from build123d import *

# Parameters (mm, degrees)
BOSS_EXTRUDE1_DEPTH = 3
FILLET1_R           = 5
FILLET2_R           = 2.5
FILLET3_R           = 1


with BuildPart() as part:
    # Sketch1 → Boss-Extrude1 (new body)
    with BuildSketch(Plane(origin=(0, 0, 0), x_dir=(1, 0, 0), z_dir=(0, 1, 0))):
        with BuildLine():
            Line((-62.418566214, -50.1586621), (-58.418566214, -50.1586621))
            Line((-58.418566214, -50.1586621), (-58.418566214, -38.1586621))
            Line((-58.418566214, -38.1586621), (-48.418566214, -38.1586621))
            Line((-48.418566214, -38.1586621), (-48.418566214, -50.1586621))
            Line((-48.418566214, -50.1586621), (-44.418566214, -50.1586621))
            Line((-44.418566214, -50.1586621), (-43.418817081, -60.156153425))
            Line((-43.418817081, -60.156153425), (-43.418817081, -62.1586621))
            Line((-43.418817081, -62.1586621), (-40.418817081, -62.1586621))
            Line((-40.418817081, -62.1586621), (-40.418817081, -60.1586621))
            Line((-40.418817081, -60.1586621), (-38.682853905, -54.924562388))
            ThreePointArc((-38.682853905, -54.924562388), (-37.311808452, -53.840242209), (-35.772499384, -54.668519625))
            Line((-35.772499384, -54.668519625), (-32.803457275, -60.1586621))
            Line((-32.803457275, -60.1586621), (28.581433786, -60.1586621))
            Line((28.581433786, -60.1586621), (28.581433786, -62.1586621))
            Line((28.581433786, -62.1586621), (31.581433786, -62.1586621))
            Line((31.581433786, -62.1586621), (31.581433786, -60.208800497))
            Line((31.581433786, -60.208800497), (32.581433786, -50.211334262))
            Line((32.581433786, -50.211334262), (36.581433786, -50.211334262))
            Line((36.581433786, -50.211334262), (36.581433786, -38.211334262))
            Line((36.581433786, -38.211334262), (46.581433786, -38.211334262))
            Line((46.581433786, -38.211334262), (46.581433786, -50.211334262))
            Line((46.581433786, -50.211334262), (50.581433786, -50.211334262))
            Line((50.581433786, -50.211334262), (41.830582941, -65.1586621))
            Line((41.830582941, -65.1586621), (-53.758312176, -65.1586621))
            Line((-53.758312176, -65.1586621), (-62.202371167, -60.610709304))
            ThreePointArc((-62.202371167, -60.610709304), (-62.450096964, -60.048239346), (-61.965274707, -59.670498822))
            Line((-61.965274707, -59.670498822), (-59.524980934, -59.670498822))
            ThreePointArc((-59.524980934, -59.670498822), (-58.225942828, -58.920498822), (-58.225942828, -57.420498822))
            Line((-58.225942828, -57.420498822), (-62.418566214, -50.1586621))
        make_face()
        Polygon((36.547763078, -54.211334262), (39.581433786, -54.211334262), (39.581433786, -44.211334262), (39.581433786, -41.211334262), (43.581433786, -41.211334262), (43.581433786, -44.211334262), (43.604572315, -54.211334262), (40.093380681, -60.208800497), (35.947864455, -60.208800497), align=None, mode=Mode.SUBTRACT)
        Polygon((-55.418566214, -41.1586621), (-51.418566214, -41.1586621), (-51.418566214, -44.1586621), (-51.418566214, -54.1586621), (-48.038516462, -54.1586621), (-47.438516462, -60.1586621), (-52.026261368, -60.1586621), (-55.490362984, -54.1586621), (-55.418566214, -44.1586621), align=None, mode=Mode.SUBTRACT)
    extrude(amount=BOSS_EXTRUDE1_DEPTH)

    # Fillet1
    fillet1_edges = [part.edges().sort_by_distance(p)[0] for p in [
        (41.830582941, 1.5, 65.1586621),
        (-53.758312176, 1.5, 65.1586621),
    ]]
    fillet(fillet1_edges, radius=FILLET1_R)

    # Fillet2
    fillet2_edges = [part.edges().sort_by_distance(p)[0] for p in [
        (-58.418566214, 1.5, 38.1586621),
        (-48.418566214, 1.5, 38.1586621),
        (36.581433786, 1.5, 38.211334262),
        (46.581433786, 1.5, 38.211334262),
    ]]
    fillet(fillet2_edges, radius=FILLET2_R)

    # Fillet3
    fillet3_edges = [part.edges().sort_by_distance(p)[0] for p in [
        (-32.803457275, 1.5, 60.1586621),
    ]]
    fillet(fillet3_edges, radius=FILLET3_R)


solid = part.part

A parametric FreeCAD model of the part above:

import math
import FreeCAD as App
import Part
import Sketcher
from FreeCAD import Vector
Q = App.Units.Quantity


def edges_at(feature, points):
    """Names of the edges that pass closest to the given points."""
    edges = feature.Shape.Edges
    near = lambda p: min(range(len(edges)), key=lambda i: edges[i].distToShape(Part.Vertex(*p))[0])
    return sorted({f"Edge{near(p) + 1}" for p in points})


def add_polygon(sketch, points):
    """Adds a closed chain of lines whose ends are joined by coincident constraints."""
    first, n = sketch.GeometryCount, len(points)
    for a, b in zip(points, points[1:] + points[:1]):
        sketch.addGeometry(Part.LineSegment(App.Vector(*a, 0), App.Vector(*b, 0)), False)
    for i in range(n):
        sketch.addConstraint(Sketcher.Constraint("Coincident", first + i, 2, first + (i + 1) % n, 1))

doc = App.newDocument("Part")
body = doc.addObject("PartDesign::Body", "Body")

# Sketch on XZ plane
sketch1 = body.newObject("Sketcher::SketchObject", "Sketch")
sketch1.AttachmentSupport = (doc.getObject("XZ_Plane"), [""])
sketch1.MapMode = "FlatFace"
sketch1.addGeometry(Part.LineSegment(Vector(-58.4, 50.2, 0), Vector(-62.4, 50.2, 0)), False)  # 0
sketch1.addGeometry(Part.LineSegment(Vector(-62.4, 50.2, 0), Vector(-58.2, 57.4, 0)), False)  # 1
sketch1.addGeometry(Part.ArcOfCircle(Part.Circle(Vector(-59.5, 58.2, 0), Vector(0, 0, 1), 1.5), math.radians(-30), math.radians(90)), False)  # 2
sketch1.addGeometry(Part.LineSegment(Vector(-59.5, 59.7, 0), Vector(-62, 59.7, 0)), False)  # 3
sketch1.addGeometry(Part.ArcOfCircle(Part.Circle(Vector(-62, 60.2, 0), Vector(0, 0, 1), 0.5), math.radians(118), math.radians(270)), False)  # 4
sketch1.addGeometry(Part.LineSegment(Vector(-62.2, 60.6, 0), Vector(-53.8, 65.2, 0)), False)  # 5
sketch1.addGeometry(Part.LineSegment(Vector(-53.8, 65.2, 0), Vector(41.8, 65.2, 0)), False)  # 6
sketch1.addGeometry(Part.LineSegment(Vector(41.8, 65.2, 0), Vector(50.6, 50.2, 0)), False)  # 7
sketch1.addGeometry(Part.LineSegment(Vector(50.6, 50.2, 0), Vector(46.6, 50.2, 0)), False)  # 8
sketch1.addGeometry(Part.LineSegment(Vector(46.6, 50.2, 0), Vector(46.6, 38.2, 0)), False)  # 9
sketch1.addGeometry(Part.LineSegment(Vector(46.6, 38.2, 0), Vector(36.6, 38.2, 0)), False)  # 10
sketch1.addGeometry(Part.LineSegment(Vector(36.6, 38.2, 0), Vector(36.6, 50.2, 0)), False)  # 11
sketch1.addGeometry(Part.LineSegment(Vector(36.6, 50.2, 0), Vector(32.6, 50.2, 0)), False)  # 12
sketch1.addGeometry(Part.LineSegment(Vector(32.6, 50.2, 0), Vector(31.6, 60.2, 0)), False)  # 13
sketch1.addGeometry(Part.LineSegment(Vector(31.6, 60.2, 0), Vector(31.6, 62.2, 0)), False)  # 14
sketch1.addGeometry(Part.LineSegment(Vector(31.6, 62.2, 0), Vector(28.6, 62.2, 0)), False)  # 15
sketch1.addGeometry(Part.LineSegment(Vector(28.6, 62.2, 0), Vector(28.6, 60.2, 0)), False)  # 16
sketch1.addGeometry(Part.LineSegment(Vector(28.6, 60.2, 0), Vector(-32.8, 60.2, 0)), False)  # 17
sketch1.addGeometry(Part.LineSegment(Vector(-32.8, 60.2, 0), Vector(-35.8, 54.7, 0)), False)  # 18
sketch1.addGeometry(Part.ArcOfCircle(Part.Circle(Vector(-37.2, 55.4, 0), Vector(0, 0, 1), 1.6), math.radians(-162), math.radians(-28)), False)  # 19
sketch1.addGeometry(Part.LineSegment(Vector(-38.7, 54.9, 0), Vector(-40.4, 60.2, 0)), False)  # 20
sketch1.addGeometry(Part.LineSegment(Vector(-40.4, 60.2, 0), Vector(-40.4, 62.2, 0)), False)  # 21
sketch1.addGeometry(Part.LineSegment(Vector(-40.4, 62.2, 0), Vector(-43.4, 62.2, 0)), False)  # 22
sketch1.addGeometry(Part.LineSegment(Vector(-43.4, 62.2, 0), Vector(-43.4, 60.2, 0)), False)  # 23
sketch1.addGeometry(Part.LineSegment(Vector(-43.4, 60.2, 0), Vector(-44.4, 50.2, 0)), False)  # 24
sketch1.addGeometry(Part.LineSegment(Vector(-44.4, 50.2, 0), Vector(-48.4, 50.2, 0)), False)  # 25
sketch1.addGeometry(Part.LineSegment(Vector(-48.4, 50.2, 0), Vector(-48.4, 38.2, 0)), False)  # 26
sketch1.addGeometry(Part.LineSegment(Vector(-48.4, 38.2, 0), Vector(-58.4, 38.2, 0)), False)  # 27
sketch1.addGeometry(Part.LineSegment(Vector(-58.4, 38.2, 0), Vector(-58.4, 50.2, 0)), False)  # 28
add_polygon(sketch1, [(36.5, 54.2), (39.6, 54.2), (39.6, 41.2), (43.6, 41.2), (43.6, 44.2), (43.6, 54.2), (40.1, 60.2), (35.9, 60.2)])  # lines 29-36
add_polygon(sketch1, [(-55.4, 41.2), (-51.4, 41.2), (-51.4, 54.2), (-48, 54.2), (-47.4, 60.2), (-52, 60.2), (-55.5, 54.2), (-55.4, 44.2)])  # lines 37-44
sketch1.addConstraint(Sketcher.Constraint("Coincident", 0, 2, 1, 1))
sketch1.addConstraint(Sketcher.Constraint("Tangent", 1, 2, 2, 1))
sketch1.addConstraint(Sketcher.Constraint("Tangent", 2, 2, 3, 1))
sketch1.addConstraint(Sketcher.Constraint("Tangent", 3, 2, 4, 2))
sketch1.addConstraint(Sketcher.Constraint("Tangent", 4, 1, 5, 1))
sketch1.addConstraint(Sketcher.Constraint("Coincident", 5, 2, 6, 1))
sketch1.addConstraint(Sketcher.Constraint("Coincident", 6, 2, 7, 1))
sketch1.addConstraint(Sketcher.Constraint("Coincident", 7, 2, 8, 1))
sketch1.addConstraint(Sketcher.Constraint("Coincident", 8, 2, 9, 1))
sketch1.addConstraint(Sketcher.Constraint("Coincident", 9, 2, 10, 1))
sketch1.addConstraint(Sketcher.Constraint("Coincident", 10, 2, 11, 1))
sketch1.addConstraint(Sketcher.Constraint("Coincident", 11, 2, 12, 1))
sketch1.addConstraint(Sketcher.Constraint("Coincident", 12, 2, 13, 1))
sketch1.addConstraint(Sketcher.Constraint("Coincident", 13, 2, 14, 1))
sketch1.addConstraint(Sketcher.Constraint("Coincident", 14, 2, 15, 1))
sketch1.addConstraint(Sketcher.Constraint("Coincident", 15, 2, 16, 1))
sketch1.addConstraint(Sketcher.Constraint("Coincident", 16, 2, 17, 1))
sketch1.addConstraint(Sketcher.Constraint("Coincident", 17, 2, 18, 1))
sketch1.addConstraint(Sketcher.Constraint("Tangent", 18, 2, 19, 2))
sketch1.addConstraint(Sketcher.Constraint("Tangent", 19, 1, 20, 1))
sketch1.addConstraint(Sketcher.Constraint("Coincident", 20, 2, 21, 1))
sketch1.addConstraint(Sketcher.Constraint("Coincident", 21, 2, 22, 1))
sketch1.addConstraint(Sketcher.Constraint("Coincident", 22, 2, 23, 1))
sketch1.addConstraint(Sketcher.Constraint("Coincident", 23, 2, 24, 1))
sketch1.addConstraint(Sketcher.Constraint("Coincident", 24, 2, 25, 1))
sketch1.addConstraint(Sketcher.Constraint("Coincident", 25, 2, 26, 1))
sketch1.addConstraint(Sketcher.Constraint("Coincident", 26, 2, 27, 1))
sketch1.addConstraint(Sketcher.Constraint("Coincident", 27, 2, 28, 1))
sketch1.addConstraint(Sketcher.Constraint("Coincident", 28, 2, 0, 1))
sketch1.addConstraint(Sketcher.Constraint("Horizontal", 0))
sketch1.addConstraint(Sketcher.Constraint("Horizontal", 3))
sketch1.addConstraint(Sketcher.Constraint("Horizontal", 6))
sketch1.addConstraint(Sketcher.Constraint("Horizontal", 8))
sketch1.addConstraint(Sketcher.Constraint("Vertical", 9))
sketch1.addConstraint(Sketcher.Constraint("Horizontal", 10))
sketch1.addConstraint(Sketcher.Constraint("Vertical", 11))
sketch1.addConstraint(Sketcher.Constraint("Horizontal", 12))
sketch1.addConstraint(Sketcher.Constraint("Vertical", 14))
sketch1.addConstraint(Sketcher.Constraint("Horizontal", 15))
sketch1.addConstraint(Sketcher.Constraint("Vertical", 16))
sketch1.addConstraint(Sketcher.Constraint("Horizontal", 17))
sketch1.addConstraint(Sketcher.Constraint("Vertical", 21))
sketch1.addConstraint(Sketcher.Constraint("Horizontal", 22))
sketch1.addConstraint(Sketcher.Constraint("Vertical", 23))
sketch1.addConstraint(Sketcher.Constraint("Horizontal", 25))
sketch1.addConstraint(Sketcher.Constraint("Vertical", 26))
sketch1.addConstraint(Sketcher.Constraint("Horizontal", 27))
sketch1.addConstraint(Sketcher.Constraint("Vertical", 28))
sketch1.addConstraint(Sketcher.Constraint("Horizontal", 29))
sketch1.addConstraint(Sketcher.Constraint("Vertical", 30))
sketch1.addConstraint(Sketcher.Constraint("Horizontal", 31))
sketch1.addConstraint(Sketcher.Constraint("Vertical", 32))
sketch1.addConstraint(Sketcher.Constraint("Horizontal", 35))
sketch1.addConstraint(Sketcher.Constraint("Horizontal", 37))
sketch1.addConstraint(Sketcher.Constraint("Vertical", 38))
sketch1.addConstraint(Sketcher.Constraint("Horizontal", 39))
sketch1.addConstraint(Sketcher.Constraint("Horizontal", 41))
sketch1.addConstraint(Sketcher.Constraint("Vertical", 44))
sketch1.addConstraint(Sketcher.Constraint("Parallel", 7, 34))
sketch1.addConstraint(Sketcher.Constraint("Parallel", 13, 36))
sketch1.addConstraint(Sketcher.Constraint("Parallel", 24, 40))
sketch1.addConstraint(Sketcher.Constraint("Parallel", 1, 42))
sketch1.addConstraint(Sketcher.Constraint("Horizontal", 8, 2, 11, 2))
sketch1.addConstraint(Sketcher.Constraint("Horizontal", 17, 2, 20, 2))
sketch1.addConstraint(Sketcher.Constraint("Horizontal", 15, 2, 21, 2))
sketch1.addConstraint(Sketcher.Constraint("Horizontal", 0, 2, 24, 2))
sketch1.addConstraint(Sketcher.Constraint("Horizontal", 29, 2, 33, 2))
sketch1.addConstraint(Sketcher.Constraint("Horizontal", 13, 2, 34, 2))
sketch1.addConstraint(Sketcher.Constraint("Horizontal", 20, 2, 40, 2))
sketch1.addConstraint(Sketcher.Constraint("Horizontal", 39, 2, 42, 2))
sketch1.addConstraint(Sketcher.Constraint("Equal", 0, 8))
sketch1.addConstraint(Sketcher.Constraint("Equal", 8, 12))
sketch1.addConstraint(Sketcher.Constraint("Equal", 15, 22))
sketch1.addConstraint(Sketcher.Constraint("Equal", 12, 25))
sketch1.addConstraint(Sketcher.Constraint("Equal", 10, 27))
sketch1.addConstraint(Sketcher.Constraint("Equal", 25, 31))
sketch1.addConstraint(Sketcher.Constraint("Equal", 31, 37))
sketch1.addConstraint(Sketcher.Constraint("Equal", 11, 26))
sketch1.addConstraint(Sketcher.Constraint("Equal", 22, 32))
sketch1.addConstraint(Sketcher.Constraint("Equal", 30, 38))
sketch1.addConstraint(Sketcher.Constraint("Equal", 32, 44))
sketch1.addConstraint(Sketcher.Constraint("Equal", 13, 24))
sketch1.addConstraint(Sketcher.Constraint("Radius", 2, 1.5))
sketch1.addConstraint(Sketcher.Constraint("Radius", 4, 0.5))
sketch1.addConstraint(Sketcher.Constraint("DistanceX", 0, 2, 0, 1, 4.0))
sketch1.addConstraint(Sketcher.Constraint("DistanceX", 10, 2, 10, 1, 10.0))
sketch1.addConstraint(Sketcher.Constraint("DistanceX", 15, 2, 15, 1, 3.0))
sketch1.addConstraint(Sketcher.Constraint("DistanceY", 9, 2, 9, 1, 12.0))
sketch1.addConstraint(Sketcher.Constraint("DistanceY", 16, 2, 16, 1, 2.0))
sketch1.addConstraint(Sketcher.Constraint("DistanceY", 30, 2, 30, 1, 13.0))
sketch1.addConstraint(Sketcher.Constraint("Angle", 1, Q("60 deg")))
sketch1.addConstraint(Sketcher.Constraint("DistanceX", 13, 2, 12, 2, 1.0))
sketch1.addConstraint(Sketcher.Constraint("DistanceY", 14, 2, 6, 2, 3.0))
sketch1.addConstraint(Sketcher.Constraint("DistanceY", 24, 2, 20, 2, 10.0))
sketch1.addConstraint(Sketcher.Constraint("DistanceX", 11, 2, 29, 2, 3.0))
sketch1.addConstraint(Sketcher.Constraint("DistanceY", 11, 2, 29, 2, 4.0))
sketch1.addConstraint(Sketcher.Constraint("DistanceX", 37, 2, 26, 2, 3.0))
sketch1.addConstraint(Sketcher.Constraint("DistanceY", 26, 2, 37, 2, 3.0))
sketch1.addConstraint(Sketcher.Constraint("DistanceX", 39, 2, 40, 2, 0.6))
sketch1.addConstraint(Sketcher.Constraint("Radius", 19, 1.591427))
sketch1.addConstraint(Sketcher.Constraint("DistanceX", 17, 2, 17, 1, 61.384891))
sketch1.addConstraint(Sketcher.Constraint("DistanceX", 29, 1, 29, 2, 3.033671))
sketch1.addConstraint(Sketcher.Constraint("DistanceX", 39, 1, 39, 2, 3.38005))
sketch1.addConstraint(Sketcher.Constraint("DistanceY", 14, 1, 14, 2, 1.949862))
sketch1.addConstraint(Sketcher.Constraint("DistanceY", 23, 2, 23, 1, 2.002509))
sketch1.addConstraint(Sketcher.Constraint("DistanceY", -1, 1, 2, 3, 58.170499))
sketch1.addConstraint(Sketcher.Constraint("DistanceY", -1, 1, 13, 2, 60.2088))
sketch1.addConstraint(Sketcher.Constraint("DistanceX", 18, 2, -1, 1, 35.772499))
sketch1.addConstraint(Sketcher.Constraint("DistanceY", 19, 1, 17, 2, 5.2341))
sketch1.addConstraint(Sketcher.Constraint("Distance", 7, 17.320508))
sketch1.addConstraint(Sketcher.Constraint("Distance", 20, 5.514469))
sketch1.addConstraint(Sketcher.Constraint("DistanceX", 3, 2, 3, 1, 2.440294))
sketch1.addConstraint(Sketcher.Constraint("DistanceX", 6, 1, 6, 2, 95.588895))
sketch1.addConstraint(Sketcher.Constraint("DistanceX", 35, 2, 35, 1, 4.145516))
sketch1.addConstraint(Sketcher.Constraint("DistanceX", 41, 2, 41, 1, 4.587745))
sketch1.addConstraint(Sketcher.Constraint("DistanceX", 2, 3, -1, 1, 59.524981))
pad1 = body.newObject("PartDesign::Pad", "Pad")
pad1.Profile = sketch1
pad1.Length = 3
pad1.Reversed = True
doc.recompute()

fillet = body.newObject("PartDesign::Fillet", "Fillet")
fillet.Base = (pad1, edges_at(pad1, [(41.831, 1.5, 65.159), (-53.758, 1.5, 65.159)]))
fillet.Radius = 5
doc.recompute()

fillet2 = body.newObject("PartDesign::Fillet", "Fillet001")
fillet2.Base = (fillet, edges_at(fillet, [
    (-58.419, 1.5, 38.159),
    (-48.419, 1.5, 38.159),
    (36.581, 1.5, 38.211),
    (46.581, 1.5, 38.211),
]))
fillet2.Radius = 2.5
doc.recompute()

fillet3 = body.newObject("PartDesign::Fillet", "Fillet002")
fillet3.Base = (fillet2, edges_at(fillet2, [(-32.803, 1.5, 60.159)]))
fillet3.Radius = 1

doc.recompute()
